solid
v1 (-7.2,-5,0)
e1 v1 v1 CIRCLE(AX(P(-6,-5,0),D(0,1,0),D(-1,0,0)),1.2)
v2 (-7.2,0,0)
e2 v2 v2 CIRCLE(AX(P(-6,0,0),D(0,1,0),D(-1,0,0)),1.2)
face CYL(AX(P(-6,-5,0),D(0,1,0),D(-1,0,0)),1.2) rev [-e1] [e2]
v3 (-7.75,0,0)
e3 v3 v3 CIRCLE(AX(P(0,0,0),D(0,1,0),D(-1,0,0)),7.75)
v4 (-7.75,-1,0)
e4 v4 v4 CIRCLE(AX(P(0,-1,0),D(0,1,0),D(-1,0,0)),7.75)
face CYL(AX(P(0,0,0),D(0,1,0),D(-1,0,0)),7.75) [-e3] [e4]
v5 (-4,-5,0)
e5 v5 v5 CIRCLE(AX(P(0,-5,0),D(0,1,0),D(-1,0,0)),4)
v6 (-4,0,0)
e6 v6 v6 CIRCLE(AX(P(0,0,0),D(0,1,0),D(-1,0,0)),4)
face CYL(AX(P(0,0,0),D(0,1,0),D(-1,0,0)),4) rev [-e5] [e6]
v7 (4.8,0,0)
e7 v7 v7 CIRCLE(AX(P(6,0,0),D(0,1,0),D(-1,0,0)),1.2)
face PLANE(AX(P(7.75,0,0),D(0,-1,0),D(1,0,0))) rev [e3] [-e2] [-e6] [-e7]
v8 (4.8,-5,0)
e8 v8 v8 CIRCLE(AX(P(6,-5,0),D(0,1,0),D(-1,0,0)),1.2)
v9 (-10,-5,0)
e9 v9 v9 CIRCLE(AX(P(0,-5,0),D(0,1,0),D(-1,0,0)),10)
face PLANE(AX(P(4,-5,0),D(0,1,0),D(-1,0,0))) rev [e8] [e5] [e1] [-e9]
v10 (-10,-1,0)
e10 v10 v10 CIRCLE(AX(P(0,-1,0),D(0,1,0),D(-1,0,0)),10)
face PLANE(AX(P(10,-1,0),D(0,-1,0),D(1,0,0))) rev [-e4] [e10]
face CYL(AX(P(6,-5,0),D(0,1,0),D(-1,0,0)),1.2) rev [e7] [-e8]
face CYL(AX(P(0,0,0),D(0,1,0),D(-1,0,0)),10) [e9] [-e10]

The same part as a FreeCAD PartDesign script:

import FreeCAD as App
import Part
import Sketcher
Q = App.Units.Quantity


def add_polygon(sketch, points):
    """Adds a closed chain of lines whose ends are joined by coincident constraints."""
    first, n = sketch.GeometryCount, len(points)
    for a, b in zip(points, points[1:] + points[:1]):
        sketch.addGeometry(Part.LineSegment(App.Vector(*a, 0), App.Vector(*b, 0)), False)
    for i in range(n):
        sketch.addConstraint(Sketcher.Constraint("Coincident", first + i, 2, first + (i + 1) % n, 1))

doc = App.newDocument("Part")
body = doc.addObject("PartDesign::Body", "Body")

# Sketch on XY plane
sketch1 = doc.addObject("Sketcher::SketchObject", "Sketch")
body.addObject(sketch1)
sketch1.AttachmentSupport = (doc.XY_Plane, [""])
sketch1.MapMode = "FlatFace"
add_polygon(sketch1, [(4, 0), (4, -5), (10, -5), (10, -1), (7.8, -1), (7.8, 0)])  # lines 0-5
sketch1.addConstraint([
    Sketcher.Constraint("Vertical", 0),
    Sketcher.Constraint("Horizontal", 1),
    Sketcher.Constraint("Vertical", 2),
    Sketcher.Constraint("Horizontal", 3),
    Sketcher.Constraint("Vertical", 4),
    Sketcher.Constraint("Horizontal", 5),
    Sketcher.Constraint("PointOnObject", 4, 2, -1),
    Sketcher.Constraint("DistanceX", 1, 1, 1, 2, Q("6 mm")),
    Sketcher.Constraint("DistanceY", 0, 2, 0, 1, Q("5 mm")),
    Sketcher.Constraint("DistanceY", 2, 1, 2, 2, Q("4 mm")),
    Sketcher.Constraint("DistanceX", -1, 1, 0, 2, Q("4 mm")),
    Sketcher.Constraint("DistanceX", 3, 2, 3, 1, Q("2.25 mm")),
])
revolution = doc.addObject("PartDesign::Revolution", "Revolution")
body.addObject(revolution)
revolution.Profile = sketch1
revolution.ReferenceAxis = (sketch1, ["V_Axis"])
revolution.Angle = 360

# Sketch on XZ plane
sketch2 = doc.addObject("Sketcher::SketchObject", "Sketch001")
body.addObject(sketch2)
sketch2.AttachmentSupport = (doc.XZ_Plane, [""])
sketch2.MapMode = "FlatFace"
sketch2.addGeometry([
    Part.Circle(App.Vector(6, 0, 0), App.Vector(0, 0, 1), 1.2),
    Part.Circle(App.Vector(-6, 0, 0), App.Vector(0, 0, 1), 1.2),
], False)
sketch2.addConstraint([
    Sketcher.Constraint("Equal", 0, 1),
    Sketcher.Constraint("Symmetric", 0, 3, 1, 3, -1, 1),
    Sketcher.Constraint("PointOnObject", 0, 3, -1),
    Sketcher.Constraint("Diameter", 0, Q("2.4 mm")),
    Sketcher.Constraint("DistanceX", -1, 1, 0, 3, Q("6 mm")),
])
pocket1 = doc.addObject("PartDesign::Pocket", "Pocket")
body.addObject(pocket1)
pocket1.Profile = sketch2
pocket1.Type = "ThroughAll"
pocket1.Reversed = True

doc.recompute()
